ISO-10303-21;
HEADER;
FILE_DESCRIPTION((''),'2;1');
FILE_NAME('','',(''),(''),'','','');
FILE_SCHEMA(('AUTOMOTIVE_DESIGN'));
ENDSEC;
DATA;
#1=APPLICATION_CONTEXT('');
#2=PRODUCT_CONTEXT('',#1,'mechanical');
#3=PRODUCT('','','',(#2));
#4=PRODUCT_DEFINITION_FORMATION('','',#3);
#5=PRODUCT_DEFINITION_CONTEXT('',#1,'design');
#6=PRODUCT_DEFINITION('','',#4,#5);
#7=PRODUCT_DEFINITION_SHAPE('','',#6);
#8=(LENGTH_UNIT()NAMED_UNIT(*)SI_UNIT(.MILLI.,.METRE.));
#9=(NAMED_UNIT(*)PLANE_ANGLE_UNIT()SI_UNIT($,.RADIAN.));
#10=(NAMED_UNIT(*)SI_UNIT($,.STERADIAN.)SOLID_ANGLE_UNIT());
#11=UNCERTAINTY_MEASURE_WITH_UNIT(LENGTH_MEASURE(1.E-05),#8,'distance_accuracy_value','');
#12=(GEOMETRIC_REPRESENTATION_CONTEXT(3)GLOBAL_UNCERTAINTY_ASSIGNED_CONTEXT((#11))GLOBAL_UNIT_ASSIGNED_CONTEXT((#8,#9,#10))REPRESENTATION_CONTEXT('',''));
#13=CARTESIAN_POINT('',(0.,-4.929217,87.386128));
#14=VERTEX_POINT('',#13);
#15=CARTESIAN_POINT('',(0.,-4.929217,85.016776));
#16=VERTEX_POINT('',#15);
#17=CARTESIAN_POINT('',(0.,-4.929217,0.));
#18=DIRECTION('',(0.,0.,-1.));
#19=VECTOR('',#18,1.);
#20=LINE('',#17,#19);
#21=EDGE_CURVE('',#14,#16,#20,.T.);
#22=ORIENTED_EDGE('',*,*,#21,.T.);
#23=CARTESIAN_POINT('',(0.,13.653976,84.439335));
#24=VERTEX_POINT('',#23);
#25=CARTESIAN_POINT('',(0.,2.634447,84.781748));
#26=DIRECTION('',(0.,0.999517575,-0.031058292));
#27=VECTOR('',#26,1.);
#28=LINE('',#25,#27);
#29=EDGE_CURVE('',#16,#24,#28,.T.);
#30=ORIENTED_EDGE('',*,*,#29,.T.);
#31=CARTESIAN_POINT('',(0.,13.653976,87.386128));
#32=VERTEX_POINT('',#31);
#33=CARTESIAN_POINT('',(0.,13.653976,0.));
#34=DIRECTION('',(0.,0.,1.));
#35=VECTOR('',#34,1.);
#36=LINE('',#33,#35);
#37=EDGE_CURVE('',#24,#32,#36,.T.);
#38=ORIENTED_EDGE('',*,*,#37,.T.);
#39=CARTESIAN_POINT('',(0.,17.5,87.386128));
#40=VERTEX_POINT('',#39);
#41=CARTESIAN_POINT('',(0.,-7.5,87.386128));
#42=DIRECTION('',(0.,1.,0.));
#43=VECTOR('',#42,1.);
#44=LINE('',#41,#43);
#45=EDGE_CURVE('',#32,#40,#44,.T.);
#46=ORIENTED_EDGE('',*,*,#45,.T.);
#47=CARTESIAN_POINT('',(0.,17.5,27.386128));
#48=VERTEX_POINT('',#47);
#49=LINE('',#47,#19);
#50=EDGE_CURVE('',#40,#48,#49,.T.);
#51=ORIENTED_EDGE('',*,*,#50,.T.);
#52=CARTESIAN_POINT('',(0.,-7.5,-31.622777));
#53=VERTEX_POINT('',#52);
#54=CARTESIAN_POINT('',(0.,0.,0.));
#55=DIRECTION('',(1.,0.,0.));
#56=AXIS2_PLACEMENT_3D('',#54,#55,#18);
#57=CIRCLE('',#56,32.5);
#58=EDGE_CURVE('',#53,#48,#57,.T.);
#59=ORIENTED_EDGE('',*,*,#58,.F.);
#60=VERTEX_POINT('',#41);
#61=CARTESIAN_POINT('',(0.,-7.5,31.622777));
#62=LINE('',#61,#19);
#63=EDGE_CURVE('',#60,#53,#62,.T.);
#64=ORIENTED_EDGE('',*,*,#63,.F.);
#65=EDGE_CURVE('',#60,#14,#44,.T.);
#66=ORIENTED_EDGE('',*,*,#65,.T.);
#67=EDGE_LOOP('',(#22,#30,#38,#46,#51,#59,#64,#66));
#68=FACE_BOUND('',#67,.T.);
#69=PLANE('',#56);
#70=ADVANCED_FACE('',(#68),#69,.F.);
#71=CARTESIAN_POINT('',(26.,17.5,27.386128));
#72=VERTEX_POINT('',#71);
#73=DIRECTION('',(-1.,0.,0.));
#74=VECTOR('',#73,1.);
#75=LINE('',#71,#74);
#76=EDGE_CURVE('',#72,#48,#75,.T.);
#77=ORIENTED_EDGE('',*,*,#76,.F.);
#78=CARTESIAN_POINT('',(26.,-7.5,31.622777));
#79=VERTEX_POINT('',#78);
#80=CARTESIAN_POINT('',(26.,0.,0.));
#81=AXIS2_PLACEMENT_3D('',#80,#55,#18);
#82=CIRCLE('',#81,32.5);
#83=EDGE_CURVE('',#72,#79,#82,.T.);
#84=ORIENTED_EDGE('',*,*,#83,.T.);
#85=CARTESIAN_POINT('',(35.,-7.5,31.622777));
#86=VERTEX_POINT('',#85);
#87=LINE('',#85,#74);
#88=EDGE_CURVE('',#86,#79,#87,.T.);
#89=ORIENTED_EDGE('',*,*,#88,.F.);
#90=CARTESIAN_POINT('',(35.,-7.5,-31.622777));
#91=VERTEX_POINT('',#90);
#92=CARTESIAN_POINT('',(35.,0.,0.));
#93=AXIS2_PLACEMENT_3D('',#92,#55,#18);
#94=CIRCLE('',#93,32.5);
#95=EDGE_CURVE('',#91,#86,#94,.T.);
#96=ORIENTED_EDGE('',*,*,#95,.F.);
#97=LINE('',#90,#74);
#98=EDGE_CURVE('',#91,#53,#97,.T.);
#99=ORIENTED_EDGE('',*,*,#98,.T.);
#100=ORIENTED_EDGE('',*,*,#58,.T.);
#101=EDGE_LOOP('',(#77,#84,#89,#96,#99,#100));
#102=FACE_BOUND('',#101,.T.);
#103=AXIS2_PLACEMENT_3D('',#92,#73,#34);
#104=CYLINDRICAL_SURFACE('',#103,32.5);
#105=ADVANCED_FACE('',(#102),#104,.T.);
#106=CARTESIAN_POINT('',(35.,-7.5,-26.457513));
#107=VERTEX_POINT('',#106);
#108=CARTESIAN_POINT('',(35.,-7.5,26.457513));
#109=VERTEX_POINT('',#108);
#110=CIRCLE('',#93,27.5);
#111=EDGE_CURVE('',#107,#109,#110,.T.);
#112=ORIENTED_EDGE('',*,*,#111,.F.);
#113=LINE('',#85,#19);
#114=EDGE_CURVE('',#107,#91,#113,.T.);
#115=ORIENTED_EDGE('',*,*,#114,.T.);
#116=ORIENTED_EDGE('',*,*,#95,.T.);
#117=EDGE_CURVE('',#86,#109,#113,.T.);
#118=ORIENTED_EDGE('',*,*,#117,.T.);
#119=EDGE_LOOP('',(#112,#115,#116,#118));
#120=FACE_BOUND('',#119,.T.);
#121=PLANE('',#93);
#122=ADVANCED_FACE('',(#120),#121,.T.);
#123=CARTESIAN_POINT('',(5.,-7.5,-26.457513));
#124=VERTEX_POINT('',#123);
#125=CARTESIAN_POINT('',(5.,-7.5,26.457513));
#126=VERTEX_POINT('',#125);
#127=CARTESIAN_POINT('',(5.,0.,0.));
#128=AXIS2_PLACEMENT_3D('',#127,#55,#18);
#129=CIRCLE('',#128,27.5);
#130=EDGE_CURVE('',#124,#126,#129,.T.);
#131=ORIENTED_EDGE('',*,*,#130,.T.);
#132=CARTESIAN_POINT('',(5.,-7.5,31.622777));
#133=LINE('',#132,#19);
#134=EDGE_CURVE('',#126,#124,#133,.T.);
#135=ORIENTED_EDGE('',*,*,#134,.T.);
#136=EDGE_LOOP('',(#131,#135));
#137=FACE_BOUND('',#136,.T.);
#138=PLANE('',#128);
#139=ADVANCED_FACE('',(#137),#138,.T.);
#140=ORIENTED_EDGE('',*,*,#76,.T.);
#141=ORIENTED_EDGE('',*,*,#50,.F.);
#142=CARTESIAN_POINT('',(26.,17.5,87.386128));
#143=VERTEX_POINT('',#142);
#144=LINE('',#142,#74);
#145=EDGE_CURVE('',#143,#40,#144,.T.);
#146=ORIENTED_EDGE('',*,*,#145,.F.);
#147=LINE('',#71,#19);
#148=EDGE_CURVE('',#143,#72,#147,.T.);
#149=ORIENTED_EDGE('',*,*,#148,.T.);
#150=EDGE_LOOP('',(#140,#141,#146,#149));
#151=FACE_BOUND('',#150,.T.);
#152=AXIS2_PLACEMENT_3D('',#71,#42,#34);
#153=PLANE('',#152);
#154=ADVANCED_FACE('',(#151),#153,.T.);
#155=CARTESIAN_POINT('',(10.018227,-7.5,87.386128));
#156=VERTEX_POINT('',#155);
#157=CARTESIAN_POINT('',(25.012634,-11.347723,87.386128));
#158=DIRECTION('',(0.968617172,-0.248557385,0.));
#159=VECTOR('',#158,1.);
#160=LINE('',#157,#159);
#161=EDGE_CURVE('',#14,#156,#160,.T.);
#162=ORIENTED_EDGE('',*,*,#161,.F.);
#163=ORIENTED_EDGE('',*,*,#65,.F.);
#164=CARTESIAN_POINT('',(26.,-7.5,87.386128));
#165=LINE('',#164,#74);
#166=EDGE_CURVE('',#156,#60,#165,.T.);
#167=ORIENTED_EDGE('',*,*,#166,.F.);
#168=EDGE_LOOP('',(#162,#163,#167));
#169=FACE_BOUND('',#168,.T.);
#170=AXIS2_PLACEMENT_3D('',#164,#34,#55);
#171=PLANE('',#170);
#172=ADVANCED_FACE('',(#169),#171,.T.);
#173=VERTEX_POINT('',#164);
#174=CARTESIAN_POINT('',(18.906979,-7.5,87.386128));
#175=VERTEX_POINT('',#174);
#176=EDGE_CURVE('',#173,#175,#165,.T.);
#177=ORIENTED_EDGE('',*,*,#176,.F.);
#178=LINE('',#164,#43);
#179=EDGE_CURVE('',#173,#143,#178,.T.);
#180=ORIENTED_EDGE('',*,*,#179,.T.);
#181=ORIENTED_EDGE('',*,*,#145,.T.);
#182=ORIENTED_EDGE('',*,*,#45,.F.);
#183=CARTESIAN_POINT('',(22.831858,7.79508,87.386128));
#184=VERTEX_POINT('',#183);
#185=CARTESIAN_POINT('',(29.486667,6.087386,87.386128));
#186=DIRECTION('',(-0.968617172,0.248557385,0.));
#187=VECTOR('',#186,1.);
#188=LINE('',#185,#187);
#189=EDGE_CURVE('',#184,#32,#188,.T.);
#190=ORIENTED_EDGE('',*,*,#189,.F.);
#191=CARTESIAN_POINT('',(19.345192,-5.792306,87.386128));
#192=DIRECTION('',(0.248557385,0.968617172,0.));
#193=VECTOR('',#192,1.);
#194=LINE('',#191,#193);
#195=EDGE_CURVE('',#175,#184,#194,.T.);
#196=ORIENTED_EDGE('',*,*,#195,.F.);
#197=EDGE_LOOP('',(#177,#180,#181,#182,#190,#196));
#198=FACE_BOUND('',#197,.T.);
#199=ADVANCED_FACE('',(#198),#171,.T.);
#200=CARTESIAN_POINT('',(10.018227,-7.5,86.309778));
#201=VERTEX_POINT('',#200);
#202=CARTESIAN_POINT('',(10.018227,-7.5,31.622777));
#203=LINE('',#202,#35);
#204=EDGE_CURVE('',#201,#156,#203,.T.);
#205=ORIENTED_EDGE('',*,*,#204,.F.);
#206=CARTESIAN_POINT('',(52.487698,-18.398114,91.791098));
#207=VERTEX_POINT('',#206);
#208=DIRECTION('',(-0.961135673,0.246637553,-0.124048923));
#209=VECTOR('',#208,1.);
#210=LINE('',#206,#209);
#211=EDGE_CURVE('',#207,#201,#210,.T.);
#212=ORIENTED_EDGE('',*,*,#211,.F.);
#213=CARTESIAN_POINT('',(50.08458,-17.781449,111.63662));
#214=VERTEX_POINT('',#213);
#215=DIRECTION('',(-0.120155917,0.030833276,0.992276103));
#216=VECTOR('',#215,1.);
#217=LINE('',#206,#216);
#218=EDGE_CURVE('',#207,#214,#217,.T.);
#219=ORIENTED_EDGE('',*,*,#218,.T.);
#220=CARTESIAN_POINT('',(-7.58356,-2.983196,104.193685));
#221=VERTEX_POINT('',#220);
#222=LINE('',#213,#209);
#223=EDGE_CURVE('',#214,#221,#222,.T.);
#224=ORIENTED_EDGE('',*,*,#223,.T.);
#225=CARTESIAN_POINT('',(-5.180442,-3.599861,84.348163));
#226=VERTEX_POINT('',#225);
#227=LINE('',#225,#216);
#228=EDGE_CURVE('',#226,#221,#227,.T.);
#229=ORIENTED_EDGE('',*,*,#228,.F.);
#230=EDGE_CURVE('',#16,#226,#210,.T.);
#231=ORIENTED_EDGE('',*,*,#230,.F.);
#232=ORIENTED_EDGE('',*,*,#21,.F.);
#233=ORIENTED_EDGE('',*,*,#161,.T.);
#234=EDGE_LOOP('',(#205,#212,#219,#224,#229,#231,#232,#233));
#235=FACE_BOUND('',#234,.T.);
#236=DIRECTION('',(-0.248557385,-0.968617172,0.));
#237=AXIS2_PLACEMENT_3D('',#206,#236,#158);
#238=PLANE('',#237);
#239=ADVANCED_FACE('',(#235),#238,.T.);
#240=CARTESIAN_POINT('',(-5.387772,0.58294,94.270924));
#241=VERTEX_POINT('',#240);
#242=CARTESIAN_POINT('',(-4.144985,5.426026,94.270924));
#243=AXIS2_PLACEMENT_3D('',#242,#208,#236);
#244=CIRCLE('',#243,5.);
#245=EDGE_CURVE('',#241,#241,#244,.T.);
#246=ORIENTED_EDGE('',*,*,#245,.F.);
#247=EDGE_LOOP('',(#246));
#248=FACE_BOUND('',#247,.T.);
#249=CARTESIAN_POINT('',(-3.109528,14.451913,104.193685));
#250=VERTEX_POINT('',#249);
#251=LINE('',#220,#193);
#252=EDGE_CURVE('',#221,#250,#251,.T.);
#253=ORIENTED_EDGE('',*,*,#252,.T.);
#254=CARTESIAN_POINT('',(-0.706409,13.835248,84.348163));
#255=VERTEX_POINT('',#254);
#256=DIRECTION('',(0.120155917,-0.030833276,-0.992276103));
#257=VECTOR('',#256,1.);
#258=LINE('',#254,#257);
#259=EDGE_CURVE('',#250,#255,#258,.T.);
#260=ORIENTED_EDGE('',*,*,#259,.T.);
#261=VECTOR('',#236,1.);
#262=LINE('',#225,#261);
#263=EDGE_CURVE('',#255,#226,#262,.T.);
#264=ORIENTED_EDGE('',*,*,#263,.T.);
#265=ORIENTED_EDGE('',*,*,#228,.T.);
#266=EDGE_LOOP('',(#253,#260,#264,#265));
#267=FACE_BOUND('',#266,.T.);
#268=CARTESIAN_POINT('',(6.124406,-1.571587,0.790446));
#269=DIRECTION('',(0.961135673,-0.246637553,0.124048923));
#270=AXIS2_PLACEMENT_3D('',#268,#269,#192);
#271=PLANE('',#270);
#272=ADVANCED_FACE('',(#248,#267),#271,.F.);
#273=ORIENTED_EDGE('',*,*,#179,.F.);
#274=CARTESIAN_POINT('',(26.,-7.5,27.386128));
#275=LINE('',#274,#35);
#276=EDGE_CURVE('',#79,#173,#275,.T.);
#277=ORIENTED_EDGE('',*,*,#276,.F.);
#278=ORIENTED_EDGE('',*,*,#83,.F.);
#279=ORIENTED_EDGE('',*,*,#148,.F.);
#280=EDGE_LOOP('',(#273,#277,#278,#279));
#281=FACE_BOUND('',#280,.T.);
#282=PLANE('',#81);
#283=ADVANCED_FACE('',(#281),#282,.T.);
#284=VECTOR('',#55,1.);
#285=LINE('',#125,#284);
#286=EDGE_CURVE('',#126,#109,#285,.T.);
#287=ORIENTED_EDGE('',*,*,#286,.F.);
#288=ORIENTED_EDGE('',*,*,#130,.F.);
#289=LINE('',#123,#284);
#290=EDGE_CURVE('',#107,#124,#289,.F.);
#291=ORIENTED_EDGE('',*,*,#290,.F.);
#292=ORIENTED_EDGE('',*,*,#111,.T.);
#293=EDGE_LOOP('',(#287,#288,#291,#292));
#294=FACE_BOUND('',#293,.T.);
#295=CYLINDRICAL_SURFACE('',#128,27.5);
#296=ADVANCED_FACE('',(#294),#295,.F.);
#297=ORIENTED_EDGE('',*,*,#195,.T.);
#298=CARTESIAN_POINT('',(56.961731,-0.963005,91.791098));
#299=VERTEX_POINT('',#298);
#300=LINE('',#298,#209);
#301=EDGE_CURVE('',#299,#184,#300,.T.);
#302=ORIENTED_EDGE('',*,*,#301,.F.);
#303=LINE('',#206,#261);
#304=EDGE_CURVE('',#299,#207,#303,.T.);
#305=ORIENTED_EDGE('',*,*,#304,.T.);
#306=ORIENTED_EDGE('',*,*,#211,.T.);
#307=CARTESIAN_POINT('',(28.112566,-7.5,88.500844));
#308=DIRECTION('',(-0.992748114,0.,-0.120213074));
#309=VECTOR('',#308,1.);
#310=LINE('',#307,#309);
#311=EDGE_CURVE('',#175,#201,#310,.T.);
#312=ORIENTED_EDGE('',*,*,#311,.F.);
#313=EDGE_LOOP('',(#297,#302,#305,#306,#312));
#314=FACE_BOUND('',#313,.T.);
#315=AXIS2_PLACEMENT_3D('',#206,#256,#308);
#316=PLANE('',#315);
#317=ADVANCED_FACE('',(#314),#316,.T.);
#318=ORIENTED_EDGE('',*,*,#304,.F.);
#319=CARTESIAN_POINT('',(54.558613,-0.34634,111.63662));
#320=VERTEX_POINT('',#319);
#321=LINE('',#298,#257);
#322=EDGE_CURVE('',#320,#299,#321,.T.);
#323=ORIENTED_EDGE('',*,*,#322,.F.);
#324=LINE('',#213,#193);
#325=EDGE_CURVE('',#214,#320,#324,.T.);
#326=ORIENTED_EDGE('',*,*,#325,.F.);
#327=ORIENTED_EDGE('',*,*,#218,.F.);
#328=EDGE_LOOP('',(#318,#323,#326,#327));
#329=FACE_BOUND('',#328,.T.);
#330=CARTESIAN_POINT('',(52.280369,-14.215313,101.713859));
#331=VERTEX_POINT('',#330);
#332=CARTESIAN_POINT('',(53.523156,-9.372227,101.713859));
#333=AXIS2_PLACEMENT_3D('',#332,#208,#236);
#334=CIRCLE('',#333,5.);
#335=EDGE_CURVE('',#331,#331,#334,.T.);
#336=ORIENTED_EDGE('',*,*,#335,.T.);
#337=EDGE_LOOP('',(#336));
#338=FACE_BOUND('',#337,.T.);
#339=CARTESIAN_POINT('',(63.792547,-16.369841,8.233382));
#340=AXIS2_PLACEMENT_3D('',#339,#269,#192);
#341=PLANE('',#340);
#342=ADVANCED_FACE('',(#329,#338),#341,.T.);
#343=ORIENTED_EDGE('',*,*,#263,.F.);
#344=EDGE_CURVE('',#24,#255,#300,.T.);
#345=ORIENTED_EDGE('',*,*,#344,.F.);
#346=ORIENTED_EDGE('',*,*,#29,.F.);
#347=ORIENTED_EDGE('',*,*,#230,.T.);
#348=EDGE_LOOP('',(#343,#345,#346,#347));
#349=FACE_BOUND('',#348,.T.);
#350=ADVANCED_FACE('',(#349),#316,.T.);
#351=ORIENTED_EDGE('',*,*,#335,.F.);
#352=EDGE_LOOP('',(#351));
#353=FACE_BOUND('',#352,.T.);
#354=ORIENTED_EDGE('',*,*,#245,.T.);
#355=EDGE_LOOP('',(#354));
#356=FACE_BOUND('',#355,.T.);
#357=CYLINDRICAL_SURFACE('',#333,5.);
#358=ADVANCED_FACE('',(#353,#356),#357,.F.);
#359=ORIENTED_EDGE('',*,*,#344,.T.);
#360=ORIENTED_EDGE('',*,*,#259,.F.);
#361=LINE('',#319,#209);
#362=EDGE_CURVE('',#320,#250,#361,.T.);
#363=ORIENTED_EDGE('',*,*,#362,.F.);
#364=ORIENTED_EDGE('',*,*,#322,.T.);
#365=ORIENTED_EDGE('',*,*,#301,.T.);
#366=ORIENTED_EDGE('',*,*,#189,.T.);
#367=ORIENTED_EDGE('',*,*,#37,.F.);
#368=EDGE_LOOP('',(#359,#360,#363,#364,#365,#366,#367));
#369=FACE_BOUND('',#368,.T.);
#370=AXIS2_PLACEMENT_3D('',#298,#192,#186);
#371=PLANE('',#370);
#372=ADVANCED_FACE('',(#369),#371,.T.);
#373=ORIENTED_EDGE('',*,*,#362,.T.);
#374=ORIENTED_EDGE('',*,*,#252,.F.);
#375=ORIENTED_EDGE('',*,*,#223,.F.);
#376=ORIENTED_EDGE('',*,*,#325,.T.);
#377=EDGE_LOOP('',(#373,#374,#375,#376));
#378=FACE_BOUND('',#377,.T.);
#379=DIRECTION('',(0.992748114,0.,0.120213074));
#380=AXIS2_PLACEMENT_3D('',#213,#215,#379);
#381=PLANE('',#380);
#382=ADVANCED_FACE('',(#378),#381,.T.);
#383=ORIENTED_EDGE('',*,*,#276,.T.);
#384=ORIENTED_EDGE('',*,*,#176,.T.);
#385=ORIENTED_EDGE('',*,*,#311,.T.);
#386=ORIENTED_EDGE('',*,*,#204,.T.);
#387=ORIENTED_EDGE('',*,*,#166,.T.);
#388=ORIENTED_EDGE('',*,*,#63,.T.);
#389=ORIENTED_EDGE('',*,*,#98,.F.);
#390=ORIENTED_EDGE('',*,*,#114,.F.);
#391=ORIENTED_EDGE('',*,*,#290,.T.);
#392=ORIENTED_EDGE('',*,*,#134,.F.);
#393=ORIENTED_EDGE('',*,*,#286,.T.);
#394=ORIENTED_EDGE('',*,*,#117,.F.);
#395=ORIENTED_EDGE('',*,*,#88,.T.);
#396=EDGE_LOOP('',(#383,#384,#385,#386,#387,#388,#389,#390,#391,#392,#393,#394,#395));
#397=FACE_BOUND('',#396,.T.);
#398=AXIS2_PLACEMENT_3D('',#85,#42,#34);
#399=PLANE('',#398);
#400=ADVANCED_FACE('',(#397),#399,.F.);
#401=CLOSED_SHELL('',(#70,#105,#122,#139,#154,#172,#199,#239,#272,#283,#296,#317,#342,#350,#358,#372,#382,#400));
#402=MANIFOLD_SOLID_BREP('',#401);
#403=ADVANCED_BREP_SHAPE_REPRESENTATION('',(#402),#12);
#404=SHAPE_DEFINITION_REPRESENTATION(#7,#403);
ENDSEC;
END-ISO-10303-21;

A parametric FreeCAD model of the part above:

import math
import FreeCAD as App
import Part
import Sketcher
from FreeCAD import Vector
Q = App.Units.Quantity


def add_polygon(sketch, points):
    """Adds a closed chain of lines whose ends are joined by coincident constraints."""
    first, n = sketch.GeometryCount, len(points)
    for a, b in zip(points, points[1:] + points[:1]):
        sketch.addGeometry(Part.LineSegment(App.Vector(*a, 0), App.Vector(*b, 0)), False)
    for i in range(n):
        sketch.addConstraint(Sketcher.Constraint("Coincident", first + i, 2, first + (i + 1) % n, 1))

doc = App.newDocument("Part")
params = doc.addObject("Spreadsheet::Sheet", "Params")
for row, (alias, value) in enumerate([
    ("sketch1_radius", "32.5 mm"),
    ("pad1_length", "35 mm"),
    ("sketch2_width", "25 mm"),
    ("sketch2_height", "60 mm"),
    ("pad2_length", "26 mm"),
    ("sketch3_diameter", "55 mm"),
    ("pocket1_length", "30 mm"),
    ("sketch4_diameter", "10 mm"),
    ("sketch4_width", "20 mm"),
    ("sketch4_height", "18 mm"),
    ("pad3_length", "22 mm"),
    ("pad3_length2", "38 mm"),
], start=1):
    params.set(f"A{row}", alias)
    params.set(f"B{row}", "=" + value)
    params.setAlias(f"B{row}", alias)

body = doc.addObject("PartDesign::Body", "Body")

sketch1 = doc.addObject("Sketcher::SketchObject", "Sketch")
body.addObject(sketch1)
sketch1.AttachmentSupport = (doc.YZ_Plane, [""])
sketch1.MapMode = "FlatFace"
sketch1.addGeometry([
    Part.LineSegment(Vector(-7.5, 31.622777, 0), Vector(-7.5, -31.622777, 0)),
    Part.ArcOfCircle(Part.Circle(Vector(0, 0, 0), Vector(0, 0, 1), 32.5), math.radians(-103.342364), math.radians(103.342364)),
], False)
sketch1.addConstraint([
    Sketcher.Constraint("Coincident", 0, 1, 1, 2),
    Sketcher.Constraint("Coincident", 1, 1, 0, 2),
    Sketcher.Constraint("Vertical", 0),
    Sketcher.Constraint("Coincident", 1, 3, -1, 1),
    Sketcher.Constraint("Radius", 1, Q("32.5 mm")),
    Sketcher.Constraint("DistanceX", 0, 1, -1, 1, Q("7.5 mm")),
])
sketch1.setExpression("Constraints[4]", "Params.sketch1_radius")
pad1 = doc.addObject("PartDesign::Pad", "Pad")
body.addObject(pad1)
pad1.Profile = sketch1
pad1.setExpression("Length", "Params.pad1_length")

sketch2 = doc.addObject("Sketcher::SketchObject", "Sketch001")
body.addObject(sketch2)
sketch2.AttachmentSupport = (doc.YZ_Plane, [""])
sketch2.MapMode = "FlatFace"
add_polygon(sketch2, [(17.5, 27.386128), (-7.5, 27.386128), (-7.5, 87.386128), (17.5, 87.386128)])
sketch2.addConstraint([
    Sketcher.Constraint("Horizontal", 0),
    Sketcher.Constraint("Vertical", 1),
    Sketcher.Constraint("Horizontal", 2),
    Sketcher.Constraint("Vertical", 3),
    Sketcher.Constraint("DistanceX", 0, 2, 0, 1, Q("25 mm")),
    Sketcher.Constraint("DistanceY", 1, 1, 1, 2, Q("60 mm")),
    Sketcher.Constraint("DistanceX", 0, 2, -1, 1, Q("7.5 mm")),
    Sketcher.Constraint("DistanceY", -1, 1, 0, 2, Q("27.386128 mm")),
])
sketch2.setExpression("Constraints[8]", "Params.sketch2_width")
sketch2.setExpression("Constraints[9]", "Params.sketch2_height")
pad2 = doc.addObject("PartDesign::Pad", "Pad001")
body.addObject(pad2)
pad2.Profile = sketch2
pad2.setExpression("Length", "Params.pad2_length")

sketch3 = doc.addObject("Sketcher::SketchObject", "Sketch002")
body.addObject(sketch3)
sketch3.AttachmentSupport = (doc.YZ_Plane, [""])
sketch3.MapMode = "FlatFace"
sketch3.AttachmentOffset = App.Placement(Vector(0, 0, 35), App.Rotation())
sketch3.addGeometry(Part.Circle(Vector(0, 0, 0), Vector(0, 0, 1), 27.5), False)
sketch3.addConstraint([
    Sketcher.Constraint("Coincident", 0, 3, -1, 1),
    Sketcher.Constraint("Diameter", 0, Q("55 mm")),
])
sketch3.setExpression("Constraints[1]", "Params.sketch3_diameter")
pocket1 = doc.addObject("PartDesign::Pocket", "Pocket")
body.addObject(pocket1)
pocket1.Profile = sketch3
pocket1.setExpression("Length", "Params.pocket1_length")

sketch4 = doc.addObject("Sketcher::SketchObject", "Sketch003")
body.addObject(sketch4)
sketch4.Placement = App.Placement(Vector(17, 0, 97), App.Rotation(Vector(-0.120155917, 0.030833276, 0.992276103), Vector(0.248557385, 0.968617172, 0), Vector(-0.961135673, 0.246637553, -0.124048923), "ZXY"))
add_polygon(sketch4, [(-10, 9), (-10, -9), (10, -9), (10, 9)])
sketch4.addGeometry(Part.Circle(Vector(0, 0, 0), Vector(0, 0, 1), 5), False)
sketch4.addConstraint([
    Sketcher.Constraint("Vertical", 0),
    Sketcher.Constraint("Horizontal", 1),
    Sketcher.Constraint("Vertical", 2),
    Sketcher.Constraint("Horizontal", 3),
    Sketcher.Constraint("Coincident", 4, 3, -1, 1),
    Sketcher.Constraint("Symmetric", 0, 2, 2, 2, -1, 1),
    Sketcher.Constraint("Diameter", 4, Q("10 mm")),
    Sketcher.Constraint("DistanceX", 1, 1, 1, 2, Q("20 mm")),
    Sketcher.Constraint("DistanceY", 0, 2, 0, 1, Q("18 mm")),
])
sketch4.setExpression("Constraints[10]", "Params.sketch4_diameter")
sketch4.setExpression("Constraints[11]", "Params.sketch4_width")
sketch4.setExpression("Constraints[12]", "Params.sketch4_height")
pad3 = doc.addObject("PartDesign::Pad", "Pad002")
body.addObject(pad3)
pad3.Profile = sketch4
pad3.Type = "TwoLengths"
pad3.setExpression("Length", "Params.pad3_length")
pad3.setExpression("Length2", "Params.pad3_length2")

doc.recompute()
